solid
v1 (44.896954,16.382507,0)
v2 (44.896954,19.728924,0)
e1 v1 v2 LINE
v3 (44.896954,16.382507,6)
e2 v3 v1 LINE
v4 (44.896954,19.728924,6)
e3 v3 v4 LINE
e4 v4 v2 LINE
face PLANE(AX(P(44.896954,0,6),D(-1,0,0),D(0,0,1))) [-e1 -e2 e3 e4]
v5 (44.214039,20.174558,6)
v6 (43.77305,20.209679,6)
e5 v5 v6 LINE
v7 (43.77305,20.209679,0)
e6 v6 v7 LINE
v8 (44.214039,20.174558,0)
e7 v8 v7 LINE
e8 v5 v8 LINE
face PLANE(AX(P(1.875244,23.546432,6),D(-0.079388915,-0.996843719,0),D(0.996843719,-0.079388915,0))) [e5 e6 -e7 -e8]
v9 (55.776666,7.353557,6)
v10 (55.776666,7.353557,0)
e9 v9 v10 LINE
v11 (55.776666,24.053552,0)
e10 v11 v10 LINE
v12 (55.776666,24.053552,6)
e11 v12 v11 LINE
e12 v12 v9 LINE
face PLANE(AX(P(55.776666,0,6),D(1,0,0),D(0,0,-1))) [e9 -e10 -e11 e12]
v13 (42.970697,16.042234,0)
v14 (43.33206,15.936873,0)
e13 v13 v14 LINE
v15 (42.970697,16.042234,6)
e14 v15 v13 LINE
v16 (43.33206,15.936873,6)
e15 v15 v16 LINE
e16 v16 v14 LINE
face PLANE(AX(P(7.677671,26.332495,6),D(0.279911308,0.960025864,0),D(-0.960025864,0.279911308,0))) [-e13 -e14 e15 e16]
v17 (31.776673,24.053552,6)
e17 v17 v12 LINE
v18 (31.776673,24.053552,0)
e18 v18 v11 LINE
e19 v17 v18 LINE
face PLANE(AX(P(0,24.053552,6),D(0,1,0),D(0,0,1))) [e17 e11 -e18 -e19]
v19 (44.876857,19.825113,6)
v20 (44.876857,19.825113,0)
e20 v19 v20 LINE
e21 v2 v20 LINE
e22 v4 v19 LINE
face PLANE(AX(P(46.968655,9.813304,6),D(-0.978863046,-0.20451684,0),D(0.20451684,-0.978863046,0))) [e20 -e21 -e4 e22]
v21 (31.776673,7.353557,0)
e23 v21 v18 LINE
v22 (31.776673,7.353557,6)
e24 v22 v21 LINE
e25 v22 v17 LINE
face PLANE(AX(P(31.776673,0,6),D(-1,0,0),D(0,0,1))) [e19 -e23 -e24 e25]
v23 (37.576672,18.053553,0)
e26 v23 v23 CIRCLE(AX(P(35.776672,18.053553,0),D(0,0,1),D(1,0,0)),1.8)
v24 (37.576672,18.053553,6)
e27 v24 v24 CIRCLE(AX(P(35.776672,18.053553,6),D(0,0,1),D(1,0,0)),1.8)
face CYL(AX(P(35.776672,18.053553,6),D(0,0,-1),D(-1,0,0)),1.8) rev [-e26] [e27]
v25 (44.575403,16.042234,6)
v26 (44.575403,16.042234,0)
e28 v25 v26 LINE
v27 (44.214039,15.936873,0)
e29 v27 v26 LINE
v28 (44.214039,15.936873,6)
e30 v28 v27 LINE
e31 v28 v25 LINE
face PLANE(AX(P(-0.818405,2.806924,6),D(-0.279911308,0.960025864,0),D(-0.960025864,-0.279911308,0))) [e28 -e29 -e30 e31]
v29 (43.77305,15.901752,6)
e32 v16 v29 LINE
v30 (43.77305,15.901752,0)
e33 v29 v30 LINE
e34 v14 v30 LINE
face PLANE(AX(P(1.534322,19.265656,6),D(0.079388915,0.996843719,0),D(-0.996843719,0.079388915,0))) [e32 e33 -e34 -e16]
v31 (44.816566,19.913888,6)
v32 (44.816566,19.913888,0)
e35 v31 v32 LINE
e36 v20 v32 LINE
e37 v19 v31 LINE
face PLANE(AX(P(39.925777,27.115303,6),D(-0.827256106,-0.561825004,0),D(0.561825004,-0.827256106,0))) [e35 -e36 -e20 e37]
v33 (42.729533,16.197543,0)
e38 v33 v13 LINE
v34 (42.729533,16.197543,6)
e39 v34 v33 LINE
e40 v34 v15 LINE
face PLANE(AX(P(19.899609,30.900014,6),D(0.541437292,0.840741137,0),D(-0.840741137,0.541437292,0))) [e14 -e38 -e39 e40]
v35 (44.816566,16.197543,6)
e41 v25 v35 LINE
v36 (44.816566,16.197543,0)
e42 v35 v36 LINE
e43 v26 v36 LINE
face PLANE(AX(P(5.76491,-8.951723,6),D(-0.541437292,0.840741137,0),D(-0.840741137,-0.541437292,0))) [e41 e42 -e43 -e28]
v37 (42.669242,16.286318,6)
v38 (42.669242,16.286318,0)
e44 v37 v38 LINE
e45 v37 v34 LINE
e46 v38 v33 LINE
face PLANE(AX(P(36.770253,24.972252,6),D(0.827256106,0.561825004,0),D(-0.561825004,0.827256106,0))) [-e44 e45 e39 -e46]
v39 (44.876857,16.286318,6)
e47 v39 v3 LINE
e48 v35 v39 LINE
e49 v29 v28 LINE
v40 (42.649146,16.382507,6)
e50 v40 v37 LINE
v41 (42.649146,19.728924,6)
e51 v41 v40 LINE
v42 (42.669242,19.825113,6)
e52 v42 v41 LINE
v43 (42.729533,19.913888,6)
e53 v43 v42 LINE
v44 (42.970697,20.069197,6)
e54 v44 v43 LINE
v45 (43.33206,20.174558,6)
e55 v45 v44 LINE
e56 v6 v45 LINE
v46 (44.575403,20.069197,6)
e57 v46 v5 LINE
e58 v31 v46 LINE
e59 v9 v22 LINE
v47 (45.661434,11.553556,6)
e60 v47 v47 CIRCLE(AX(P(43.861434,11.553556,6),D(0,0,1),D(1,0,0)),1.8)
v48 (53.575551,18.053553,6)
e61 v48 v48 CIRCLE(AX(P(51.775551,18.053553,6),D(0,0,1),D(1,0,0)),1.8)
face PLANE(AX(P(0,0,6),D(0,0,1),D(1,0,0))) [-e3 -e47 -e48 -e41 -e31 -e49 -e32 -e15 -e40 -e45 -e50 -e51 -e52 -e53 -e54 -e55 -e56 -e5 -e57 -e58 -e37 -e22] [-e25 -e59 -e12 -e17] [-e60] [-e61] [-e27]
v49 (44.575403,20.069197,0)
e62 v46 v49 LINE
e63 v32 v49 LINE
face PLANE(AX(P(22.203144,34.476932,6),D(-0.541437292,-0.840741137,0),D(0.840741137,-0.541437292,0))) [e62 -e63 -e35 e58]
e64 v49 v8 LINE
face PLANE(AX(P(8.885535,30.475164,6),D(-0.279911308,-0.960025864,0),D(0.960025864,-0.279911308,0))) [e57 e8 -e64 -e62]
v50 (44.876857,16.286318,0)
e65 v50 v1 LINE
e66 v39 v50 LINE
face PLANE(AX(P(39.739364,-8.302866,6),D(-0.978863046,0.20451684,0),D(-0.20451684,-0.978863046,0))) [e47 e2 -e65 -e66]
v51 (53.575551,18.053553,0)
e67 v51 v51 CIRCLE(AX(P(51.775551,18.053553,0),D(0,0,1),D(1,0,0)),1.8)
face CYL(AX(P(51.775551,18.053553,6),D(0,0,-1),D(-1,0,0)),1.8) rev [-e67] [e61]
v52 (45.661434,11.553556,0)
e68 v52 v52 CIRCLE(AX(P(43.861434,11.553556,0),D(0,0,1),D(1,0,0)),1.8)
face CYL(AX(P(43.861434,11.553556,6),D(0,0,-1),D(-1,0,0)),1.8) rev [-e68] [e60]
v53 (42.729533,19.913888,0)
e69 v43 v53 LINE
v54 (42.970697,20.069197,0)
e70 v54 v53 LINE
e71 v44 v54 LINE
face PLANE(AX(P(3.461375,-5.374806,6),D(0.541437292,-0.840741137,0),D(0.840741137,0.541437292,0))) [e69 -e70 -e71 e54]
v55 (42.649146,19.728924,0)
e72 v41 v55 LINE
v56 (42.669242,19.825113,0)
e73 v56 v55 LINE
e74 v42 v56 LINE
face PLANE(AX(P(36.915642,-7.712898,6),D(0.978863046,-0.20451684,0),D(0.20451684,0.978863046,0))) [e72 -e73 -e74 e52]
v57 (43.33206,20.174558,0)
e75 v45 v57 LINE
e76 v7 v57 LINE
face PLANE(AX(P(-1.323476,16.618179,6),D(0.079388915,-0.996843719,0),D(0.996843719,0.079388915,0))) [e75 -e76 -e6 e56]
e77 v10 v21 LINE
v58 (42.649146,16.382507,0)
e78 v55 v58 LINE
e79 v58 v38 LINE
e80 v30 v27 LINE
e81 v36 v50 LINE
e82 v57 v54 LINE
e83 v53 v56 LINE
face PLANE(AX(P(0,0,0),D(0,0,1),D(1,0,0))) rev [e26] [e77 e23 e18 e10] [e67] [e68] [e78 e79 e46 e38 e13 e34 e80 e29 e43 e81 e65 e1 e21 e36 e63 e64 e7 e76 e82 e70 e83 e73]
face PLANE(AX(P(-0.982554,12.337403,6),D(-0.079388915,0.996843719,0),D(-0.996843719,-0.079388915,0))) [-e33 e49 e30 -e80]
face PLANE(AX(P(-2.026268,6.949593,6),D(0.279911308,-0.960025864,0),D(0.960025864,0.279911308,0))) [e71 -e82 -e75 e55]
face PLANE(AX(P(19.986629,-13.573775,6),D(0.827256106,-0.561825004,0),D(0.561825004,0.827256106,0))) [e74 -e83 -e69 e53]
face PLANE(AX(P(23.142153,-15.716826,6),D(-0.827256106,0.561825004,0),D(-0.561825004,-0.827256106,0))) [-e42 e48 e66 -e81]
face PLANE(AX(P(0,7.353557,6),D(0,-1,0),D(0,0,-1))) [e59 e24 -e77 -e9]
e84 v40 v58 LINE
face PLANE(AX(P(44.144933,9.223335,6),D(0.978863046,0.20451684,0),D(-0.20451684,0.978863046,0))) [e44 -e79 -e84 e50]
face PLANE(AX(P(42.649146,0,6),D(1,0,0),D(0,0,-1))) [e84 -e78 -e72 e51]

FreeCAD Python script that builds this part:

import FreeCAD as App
import Part
import Sketcher
Q = App.Units.Quantity

doc = App.newDocument("Part")
body = doc.addObject("PartDesign::Body", "Body")

# Sketch on XY plane
sketch1 = doc.addObject("Sketcher::SketchObject", "Sketch")
body.addObject(sketch1)
sketch1.AttachmentSupport = (doc.XY_Plane, [""])
sketch1.MapMode = "FlatFace"
sketch1.addGeometry(Part.LineSegment(App.Vector(31.776673, 24.053552, 0), App.Vector(31.776673, 7.353557, 0)), False)
sketch1.addGeometry(Part.LineSegment(App.Vector(31.776673, 7.353557, 0), App.Vector(55.776666, 7.353557, 0)), False)
sketch1.addGeometry(Part.LineSegment(App.Vector(55.776666, 7.353557, 0), App.Vector(55.776666, 24.053552, 0)), False)
sketch1.addGeometry(Part.LineSegment(App.Vector(55.776666, 24.053552, 0), App.Vector(31.776673, 24.053552, 0)), False)
sketch1.addGeometry(Part.Circle(App.Vector(43.861434, 11.553556, 0), App.Vector(0, 0, 1), 1.8), False)
sketch1.addGeometry(Part.Circle(App.Vector(35.776672, 18.053553, 0), App.Vector(0, 0, 1), 1.8), False)
sketch1.addGeometry(Part.LineSegment(App.Vector(42.649146, 16.382507, 0), App.Vector(42.649146, 19.728924, 0)), False)
sketch1.addGeometry(Part.LineSegment(App.Vector(42.649146, 19.728924, 0), App.Vector(42.669242, 19.825113, 0)), False)
sketch1.addGeometry(Part.LineSegment(App.Vector(42.669242, 19.825113, 0), App.Vector(42.729533, 19.913888, 0)), False)
sketch1.addGeometry(Part.LineSegment(App.Vector(42.729533, 19.913888, 0), App.Vector(42.970697, 20.069197, 0)), False)
sketch1.addGeometry(Part.LineSegment(App.Vector(42.970697, 20.069197, 0), App.Vector(43.33206, 20.174558, 0)), False)
sketch1.addGeometry(Part.LineSegment(App.Vector(43.33206, 20.174558, 0), App.Vector(43.77305, 20.209679, 0)), False)
sketch1.addGeometry(Part.LineSegment(App.Vector(43.77305, 20.209679, 0), App.Vector(44.214039, 20.174558, 0)), False)
sketch1.addGeometry(Part.LineSegment(App.Vector(44.214039, 20.174558, 0), App.Vector(44.575403, 20.069197, 0)), False)
sketch1.addGeometry(Part.LineSegment(App.Vector(44.575403, 20.069197, 0), App.Vector(44.816566, 19.913888, 0)), False)
sketch1.addGeometry(Part.LineSegment(App.Vector(44.816566, 19.913888, 0), App.Vector(44.876857, 19.825113, 0)), False)
sketch1.addGeometry(Part.LineSegment(App.Vector(44.876857, 19.825113, 0), App.Vector(44.896954, 19.728924, 0)), False)
sketch1.addGeometry(Part.LineSegment(App.Vector(44.896954, 19.728924, 0), App.Vector(44.896954, 16.382507, 0)), False)
sketch1.addGeometry(Part.LineSegment(App.Vector(44.896954, 16.382507, 0), App.Vector(44.876857, 16.286318, 0)), False)
sketch1.addGeometry(Part.LineSegment(App.Vector(44.876857, 16.286318, 0), App.Vector(44.816566, 16.197543, 0)), False)
sketch1.addGeometry(Part.LineSegment(App.Vector(44.816566, 16.197543, 0), App.Vector(44.575403, 16.042234, 0)), False)
sketch1.addGeometry(Part.LineSegment(App.Vector(44.575403, 16.042234, 0), App.Vector(44.214039, 15.936873, 0)), False)
sketch1.addGeometry(Part.LineSegment(App.Vector(44.214039, 15.936873, 0), App.Vector(43.77305, 15.901752, 0)), False)
sketch1.addGeometry(Part.LineSegment(App.Vector(43.77305, 15.901752, 0), App.Vector(43.33206, 15.936873, 0)), False)
sketch1.addGeometry(Part.LineSegment(App.Vector(43.33206, 15.936873, 0), App.Vector(42.970697, 16.042234, 0)), False)
sketch1.addGeometry(Part.LineSegment(App.Vector(42.970697, 16.042234, 0), App.Vector(42.729533, 16.197543, 0)), False)
sketch1.addGeometry(Part.LineSegment(App.Vector(42.729533, 16.197543, 0), App.Vector(42.669242, 16.286318, 0)), False)
sketch1.addGeometry(Part.LineSegment(App.Vector(42.669242, 16.286318, 0), App.Vector(42.649146, 16.382507, 0)), False)
sketch1.addGeometry(Part.Circle(App.Vector(51.775551, 18.053553, 0), App.Vector(0, 0, 1), 1.8), False)
sketch1.addConstraint(Sketcher.Constraint("Coincident", 0, 2, 1, 1))
sketch1.addConstraint(Sketcher.Constraint("Coincident", 1, 2, 2, 1))
sketch1.addConstraint(Sketcher.Constraint("Coincident", 2, 2, 3, 1))
sketch1.addConstraint(Sketcher.Constraint("Coincident", 3, 2, 0, 1))
sketch1.addConstraint(Sketcher.Constraint("Coincident", 6, 2, 7, 1))
sketch1.addConstraint(Sketcher.Constraint("Coincident", 7, 2, 8, 1))
sketch1.addConstraint(Sketcher.Constraint("Coincident", 8, 2, 9, 1))
sketch1.addConstraint(Sketcher.Constraint("Coincident", 9, 2, 10, 1))
sketch1.addConstraint(Sketcher.Constraint("Coincident", 10, 2, 11, 1))
sketch1.addConstraint(Sketcher.Constraint("Coincident", 11, 2, 12, 1))
sketch1.addConstraint(Sketcher.Constraint("Coincident", 12, 2, 13, 1))
sketch1.addConstraint(Sketcher.Constraint("Coincident", 13, 2, 14, 1))
sketch1.addConstraint(Sketcher.Constraint("Coincident", 14, 2, 15, 1))
sketch1.addConstraint(Sketcher.Constraint("Coincident", 15, 2, 16, 1))
sketch1.addConstraint(Sketcher.Constraint("Coincident", 16, 2, 17, 1))
sketch1.addConstraint(Sketcher.Constraint("Coincident", 17, 2, 18, 1))
sketch1.addConstraint(Sketcher.Constraint("Coincident", 18, 2, 19, 1))
sketch1.addConstraint(Sketcher.Constraint("Coincident", 19, 2, 20, 1))
sketch1.addConstraint(Sketcher.Constraint("Coincident", 20, 2, 21, 1))
sketch1.addConstraint(Sketcher.Constraint("Coincident", 21, 2, 22, 1))
sketch1.addConstraint(Sketcher.Constraint("Coincident", 22, 2, 23, 1))
sketch1.addConstraint(Sketcher.Constraint("Coincident", 23, 2, 24, 1))
sketch1.addConstraint(Sketcher.Constraint("Coincident", 24, 2, 25, 1))
sketch1.addConstraint(Sketcher.Constraint("Coincident", 25, 2, 26, 1))
sketch1.addConstraint(Sketcher.Constraint("Coincident", 26, 2, 27, 1))
sketch1.addConstraint(Sketcher.Constraint("Coincident", 27, 2, 6, 1))
sketch1.addConstraint(Sketcher.Constraint("Vertical", 0))
sketch1.addConstraint(Sketcher.Constraint("Horizontal", 1))
sketch1.addConstraint(Sketcher.Constraint("Vertical", 2))
sketch1.addConstraint(Sketcher.Constraint("Horizontal", 3))
sketch1.addConstraint(Sketcher.Constraint("Vertical", 6))
sketch1.addConstraint(Sketcher.Constraint("Vertical", 17))
sketch1.addConstraint(Sketcher.Constraint("Equal", 4, 5))
sketch1.addConstraint(Sketcher.Constraint("Equal", 5, 28))
sketch1.addConstraint(Sketcher.Constraint("Parallel", 7, 18))
sketch1.addConstraint(Sketcher.Constraint("Parallel", 8, 19))
sketch1.addConstraint(Sketcher.Constraint("Parallel", 9, 20))
sketch1.addConstraint(Sketcher.Constraint("Parallel", 10, 21))
sketch1.addConstraint(Sketcher.Constraint("Parallel", 11, 22))
sketch1.addConstraint(Sketcher.Constraint("Parallel", 12, 23))
sketch1.addConstraint(Sketcher.Constraint("Parallel", 13, 24))
sketch1.addConstraint(Sketcher.Constraint("Parallel", 14, 25))
sketch1.addConstraint(Sketcher.Constraint("Parallel", 15, 26))
sketch1.addConstraint(Sketcher.Constraint("Parallel", 16, 27))
sketch1.addConstraint(Sketcher.Constraint("Horizontal", 5, 3, 28, 3))
sketch1.addConstraint(Sketcher.Constraint("Horizontal", 10, 2, 12, 2))
sketch1.addConstraint(Sketcher.Constraint("Horizontal", 9, 2, 13, 2))
sketch1.addConstraint(Sketcher.Constraint("Horizontal", 8, 2, 14, 2))
sketch1.addConstraint(Sketcher.Constraint("Horizontal", 7, 2, 15, 2))
sketch1.addConstraint(Sketcher.Constraint("Horizontal", 6, 2, 16, 2))
sketch1.addConstraint(Sketcher.Constraint("Horizontal", 21, 2, 23, 2))
sketch1.addConstraint(Sketcher.Constraint("Horizontal", 20, 2, 24, 2))
sketch1.addConstraint(Sketcher.Constraint("Horizontal", 19, 2, 25, 2))
sketch1.addConstraint(Sketcher.Constraint("Horizontal", 18, 2, 26, 2))
sketch1.addConstraint(Sketcher.Constraint("Horizontal", 17, 2, 27, 2))
sketch1.addConstraint(Sketcher.Constraint("Vertical", 15, 2, 18, 2))
sketch1.addConstraint(Sketcher.Constraint("Vertical", 14, 2, 19, 2))
sketch1.addConstraint(Sketcher.Constraint("Vertical", 13, 2, 20, 2))
sketch1.addConstraint(Sketcher.Constraint("Vertical", 12, 2, 21, 2))
sketch1.addConstraint(Sketcher.Constraint("Vertical", 11, 2, 22, 2))
sketch1.addConstraint(Sketcher.Constraint("Vertical", 10, 2, 23, 2))
sketch1.addConstraint(Sketcher.Constraint("Vertical", 9, 2, 24, 2))
sketch1.addConstraint(Sketcher.Constraint("Vertical", 8, 2, 25, 2))
sketch1.addConstraint(Sketcher.Constraint("Vertical", 7, 2, 26, 2))
sketch1.addConstraint(Sketcher.Constraint("Diameter", 4, Q("3.6 mm")))
sketch1.addConstraint(Sketcher.Constraint("DistanceX", 0, 2, 5, 3, Q("3.999999 mm")))
sketch1.addConstraint(Sketcher.Constraint("DistanceY", 28, 3, 2, 2, Q("5.999998 mm")))
sketch1.addConstraint(Sketcher.Constraint("DistanceY", 0, 2, 4, 3, Q("4.199999 mm")))
sketch1.addConstraint(Sketcher.Constraint("DistanceX", 8, 2, 4, 3, Q("1.1319 mm")))
sketch1.addConstraint(Sketcher.Constraint("Distance", 10, Q("0.376411 mm")))
sketch1.addConstraint(Sketcher.Constraint("DistanceX", 1, 1, 1, 2, Q("23.999992 mm")))
sketch1.addConstraint(Sketcher.Constraint("DistanceY", 0, 2, 0, 1, Q("16.699995 mm")))
sketch1.addConstraint(Sketcher.Constraint("DistanceY", 6, 1, 6, 2, Q("3.346418 mm")))
sketch1.addConstraint(Sketcher.Constraint("DistanceX", -1, 1, 28, 3, Q("51.775551 mm")))
sketch1.addConstraint(Sketcher.Constraint("DistanceY", -1, 1, 2, 2, Q("24.053552 mm")))
sketch1.addConstraint(Sketcher.Constraint("DistanceX", -1, 1, 10, 2, Q("43.33206 mm")))
sketch1.addConstraint(Sketcher.Constraint("DistanceY", -1, 1, 10, 2, Q("20.174558 mm")))
sketch1.addConstraint(Sketcher.Constraint("DistanceX", -1, 1, 11, 2, Q("43.77305 mm")))
sketch1.addConstraint(Sketcher.Constraint("DistanceY", -1, 1, 11, 2, Q("20.209679 mm")))
sketch1.addConstraint(Sketcher.Constraint("DistanceY", -1, 1, 18, 2, Q("16.286318 mm")))
sketch1.addConstraint(Sketcher.Constraint("DistanceX", 5, 3, 4, 3, Q("8.084762 mm")))
sketch1.addConstraint(Sketcher.Constraint("DistanceX", 5, 3, 28, 3, Q("15.998878 mm")))
sketch1.addConstraint(Sketcher.Constraint("DistanceY", 5, 3, 6, 2, Q("1.675371 mm")))
sketch1.addConstraint(Sketcher.Constraint("DistanceX", 6, 2, 4, 3, Q("1.212288 mm")))
sketch1.addConstraint(Sketcher.Constraint("DistanceX", 5, 3, 7, 2, Q("6.89257 mm")))
sketch1.addConstraint(Sketcher.Constraint("DistanceY", 8, 2, 9, 2, Q("0.155309 mm")))
sketch1.addConstraint(Sketcher.Constraint("DistanceX", 6, 2, 9, 2, Q("0.321551 mm")))
pad1 = doc.addObject("PartDesign::Pad", "Pad")
body.addObject(pad1)
pad1.Profile = sketch1
pad1.Length = 6

doc.recompute()
